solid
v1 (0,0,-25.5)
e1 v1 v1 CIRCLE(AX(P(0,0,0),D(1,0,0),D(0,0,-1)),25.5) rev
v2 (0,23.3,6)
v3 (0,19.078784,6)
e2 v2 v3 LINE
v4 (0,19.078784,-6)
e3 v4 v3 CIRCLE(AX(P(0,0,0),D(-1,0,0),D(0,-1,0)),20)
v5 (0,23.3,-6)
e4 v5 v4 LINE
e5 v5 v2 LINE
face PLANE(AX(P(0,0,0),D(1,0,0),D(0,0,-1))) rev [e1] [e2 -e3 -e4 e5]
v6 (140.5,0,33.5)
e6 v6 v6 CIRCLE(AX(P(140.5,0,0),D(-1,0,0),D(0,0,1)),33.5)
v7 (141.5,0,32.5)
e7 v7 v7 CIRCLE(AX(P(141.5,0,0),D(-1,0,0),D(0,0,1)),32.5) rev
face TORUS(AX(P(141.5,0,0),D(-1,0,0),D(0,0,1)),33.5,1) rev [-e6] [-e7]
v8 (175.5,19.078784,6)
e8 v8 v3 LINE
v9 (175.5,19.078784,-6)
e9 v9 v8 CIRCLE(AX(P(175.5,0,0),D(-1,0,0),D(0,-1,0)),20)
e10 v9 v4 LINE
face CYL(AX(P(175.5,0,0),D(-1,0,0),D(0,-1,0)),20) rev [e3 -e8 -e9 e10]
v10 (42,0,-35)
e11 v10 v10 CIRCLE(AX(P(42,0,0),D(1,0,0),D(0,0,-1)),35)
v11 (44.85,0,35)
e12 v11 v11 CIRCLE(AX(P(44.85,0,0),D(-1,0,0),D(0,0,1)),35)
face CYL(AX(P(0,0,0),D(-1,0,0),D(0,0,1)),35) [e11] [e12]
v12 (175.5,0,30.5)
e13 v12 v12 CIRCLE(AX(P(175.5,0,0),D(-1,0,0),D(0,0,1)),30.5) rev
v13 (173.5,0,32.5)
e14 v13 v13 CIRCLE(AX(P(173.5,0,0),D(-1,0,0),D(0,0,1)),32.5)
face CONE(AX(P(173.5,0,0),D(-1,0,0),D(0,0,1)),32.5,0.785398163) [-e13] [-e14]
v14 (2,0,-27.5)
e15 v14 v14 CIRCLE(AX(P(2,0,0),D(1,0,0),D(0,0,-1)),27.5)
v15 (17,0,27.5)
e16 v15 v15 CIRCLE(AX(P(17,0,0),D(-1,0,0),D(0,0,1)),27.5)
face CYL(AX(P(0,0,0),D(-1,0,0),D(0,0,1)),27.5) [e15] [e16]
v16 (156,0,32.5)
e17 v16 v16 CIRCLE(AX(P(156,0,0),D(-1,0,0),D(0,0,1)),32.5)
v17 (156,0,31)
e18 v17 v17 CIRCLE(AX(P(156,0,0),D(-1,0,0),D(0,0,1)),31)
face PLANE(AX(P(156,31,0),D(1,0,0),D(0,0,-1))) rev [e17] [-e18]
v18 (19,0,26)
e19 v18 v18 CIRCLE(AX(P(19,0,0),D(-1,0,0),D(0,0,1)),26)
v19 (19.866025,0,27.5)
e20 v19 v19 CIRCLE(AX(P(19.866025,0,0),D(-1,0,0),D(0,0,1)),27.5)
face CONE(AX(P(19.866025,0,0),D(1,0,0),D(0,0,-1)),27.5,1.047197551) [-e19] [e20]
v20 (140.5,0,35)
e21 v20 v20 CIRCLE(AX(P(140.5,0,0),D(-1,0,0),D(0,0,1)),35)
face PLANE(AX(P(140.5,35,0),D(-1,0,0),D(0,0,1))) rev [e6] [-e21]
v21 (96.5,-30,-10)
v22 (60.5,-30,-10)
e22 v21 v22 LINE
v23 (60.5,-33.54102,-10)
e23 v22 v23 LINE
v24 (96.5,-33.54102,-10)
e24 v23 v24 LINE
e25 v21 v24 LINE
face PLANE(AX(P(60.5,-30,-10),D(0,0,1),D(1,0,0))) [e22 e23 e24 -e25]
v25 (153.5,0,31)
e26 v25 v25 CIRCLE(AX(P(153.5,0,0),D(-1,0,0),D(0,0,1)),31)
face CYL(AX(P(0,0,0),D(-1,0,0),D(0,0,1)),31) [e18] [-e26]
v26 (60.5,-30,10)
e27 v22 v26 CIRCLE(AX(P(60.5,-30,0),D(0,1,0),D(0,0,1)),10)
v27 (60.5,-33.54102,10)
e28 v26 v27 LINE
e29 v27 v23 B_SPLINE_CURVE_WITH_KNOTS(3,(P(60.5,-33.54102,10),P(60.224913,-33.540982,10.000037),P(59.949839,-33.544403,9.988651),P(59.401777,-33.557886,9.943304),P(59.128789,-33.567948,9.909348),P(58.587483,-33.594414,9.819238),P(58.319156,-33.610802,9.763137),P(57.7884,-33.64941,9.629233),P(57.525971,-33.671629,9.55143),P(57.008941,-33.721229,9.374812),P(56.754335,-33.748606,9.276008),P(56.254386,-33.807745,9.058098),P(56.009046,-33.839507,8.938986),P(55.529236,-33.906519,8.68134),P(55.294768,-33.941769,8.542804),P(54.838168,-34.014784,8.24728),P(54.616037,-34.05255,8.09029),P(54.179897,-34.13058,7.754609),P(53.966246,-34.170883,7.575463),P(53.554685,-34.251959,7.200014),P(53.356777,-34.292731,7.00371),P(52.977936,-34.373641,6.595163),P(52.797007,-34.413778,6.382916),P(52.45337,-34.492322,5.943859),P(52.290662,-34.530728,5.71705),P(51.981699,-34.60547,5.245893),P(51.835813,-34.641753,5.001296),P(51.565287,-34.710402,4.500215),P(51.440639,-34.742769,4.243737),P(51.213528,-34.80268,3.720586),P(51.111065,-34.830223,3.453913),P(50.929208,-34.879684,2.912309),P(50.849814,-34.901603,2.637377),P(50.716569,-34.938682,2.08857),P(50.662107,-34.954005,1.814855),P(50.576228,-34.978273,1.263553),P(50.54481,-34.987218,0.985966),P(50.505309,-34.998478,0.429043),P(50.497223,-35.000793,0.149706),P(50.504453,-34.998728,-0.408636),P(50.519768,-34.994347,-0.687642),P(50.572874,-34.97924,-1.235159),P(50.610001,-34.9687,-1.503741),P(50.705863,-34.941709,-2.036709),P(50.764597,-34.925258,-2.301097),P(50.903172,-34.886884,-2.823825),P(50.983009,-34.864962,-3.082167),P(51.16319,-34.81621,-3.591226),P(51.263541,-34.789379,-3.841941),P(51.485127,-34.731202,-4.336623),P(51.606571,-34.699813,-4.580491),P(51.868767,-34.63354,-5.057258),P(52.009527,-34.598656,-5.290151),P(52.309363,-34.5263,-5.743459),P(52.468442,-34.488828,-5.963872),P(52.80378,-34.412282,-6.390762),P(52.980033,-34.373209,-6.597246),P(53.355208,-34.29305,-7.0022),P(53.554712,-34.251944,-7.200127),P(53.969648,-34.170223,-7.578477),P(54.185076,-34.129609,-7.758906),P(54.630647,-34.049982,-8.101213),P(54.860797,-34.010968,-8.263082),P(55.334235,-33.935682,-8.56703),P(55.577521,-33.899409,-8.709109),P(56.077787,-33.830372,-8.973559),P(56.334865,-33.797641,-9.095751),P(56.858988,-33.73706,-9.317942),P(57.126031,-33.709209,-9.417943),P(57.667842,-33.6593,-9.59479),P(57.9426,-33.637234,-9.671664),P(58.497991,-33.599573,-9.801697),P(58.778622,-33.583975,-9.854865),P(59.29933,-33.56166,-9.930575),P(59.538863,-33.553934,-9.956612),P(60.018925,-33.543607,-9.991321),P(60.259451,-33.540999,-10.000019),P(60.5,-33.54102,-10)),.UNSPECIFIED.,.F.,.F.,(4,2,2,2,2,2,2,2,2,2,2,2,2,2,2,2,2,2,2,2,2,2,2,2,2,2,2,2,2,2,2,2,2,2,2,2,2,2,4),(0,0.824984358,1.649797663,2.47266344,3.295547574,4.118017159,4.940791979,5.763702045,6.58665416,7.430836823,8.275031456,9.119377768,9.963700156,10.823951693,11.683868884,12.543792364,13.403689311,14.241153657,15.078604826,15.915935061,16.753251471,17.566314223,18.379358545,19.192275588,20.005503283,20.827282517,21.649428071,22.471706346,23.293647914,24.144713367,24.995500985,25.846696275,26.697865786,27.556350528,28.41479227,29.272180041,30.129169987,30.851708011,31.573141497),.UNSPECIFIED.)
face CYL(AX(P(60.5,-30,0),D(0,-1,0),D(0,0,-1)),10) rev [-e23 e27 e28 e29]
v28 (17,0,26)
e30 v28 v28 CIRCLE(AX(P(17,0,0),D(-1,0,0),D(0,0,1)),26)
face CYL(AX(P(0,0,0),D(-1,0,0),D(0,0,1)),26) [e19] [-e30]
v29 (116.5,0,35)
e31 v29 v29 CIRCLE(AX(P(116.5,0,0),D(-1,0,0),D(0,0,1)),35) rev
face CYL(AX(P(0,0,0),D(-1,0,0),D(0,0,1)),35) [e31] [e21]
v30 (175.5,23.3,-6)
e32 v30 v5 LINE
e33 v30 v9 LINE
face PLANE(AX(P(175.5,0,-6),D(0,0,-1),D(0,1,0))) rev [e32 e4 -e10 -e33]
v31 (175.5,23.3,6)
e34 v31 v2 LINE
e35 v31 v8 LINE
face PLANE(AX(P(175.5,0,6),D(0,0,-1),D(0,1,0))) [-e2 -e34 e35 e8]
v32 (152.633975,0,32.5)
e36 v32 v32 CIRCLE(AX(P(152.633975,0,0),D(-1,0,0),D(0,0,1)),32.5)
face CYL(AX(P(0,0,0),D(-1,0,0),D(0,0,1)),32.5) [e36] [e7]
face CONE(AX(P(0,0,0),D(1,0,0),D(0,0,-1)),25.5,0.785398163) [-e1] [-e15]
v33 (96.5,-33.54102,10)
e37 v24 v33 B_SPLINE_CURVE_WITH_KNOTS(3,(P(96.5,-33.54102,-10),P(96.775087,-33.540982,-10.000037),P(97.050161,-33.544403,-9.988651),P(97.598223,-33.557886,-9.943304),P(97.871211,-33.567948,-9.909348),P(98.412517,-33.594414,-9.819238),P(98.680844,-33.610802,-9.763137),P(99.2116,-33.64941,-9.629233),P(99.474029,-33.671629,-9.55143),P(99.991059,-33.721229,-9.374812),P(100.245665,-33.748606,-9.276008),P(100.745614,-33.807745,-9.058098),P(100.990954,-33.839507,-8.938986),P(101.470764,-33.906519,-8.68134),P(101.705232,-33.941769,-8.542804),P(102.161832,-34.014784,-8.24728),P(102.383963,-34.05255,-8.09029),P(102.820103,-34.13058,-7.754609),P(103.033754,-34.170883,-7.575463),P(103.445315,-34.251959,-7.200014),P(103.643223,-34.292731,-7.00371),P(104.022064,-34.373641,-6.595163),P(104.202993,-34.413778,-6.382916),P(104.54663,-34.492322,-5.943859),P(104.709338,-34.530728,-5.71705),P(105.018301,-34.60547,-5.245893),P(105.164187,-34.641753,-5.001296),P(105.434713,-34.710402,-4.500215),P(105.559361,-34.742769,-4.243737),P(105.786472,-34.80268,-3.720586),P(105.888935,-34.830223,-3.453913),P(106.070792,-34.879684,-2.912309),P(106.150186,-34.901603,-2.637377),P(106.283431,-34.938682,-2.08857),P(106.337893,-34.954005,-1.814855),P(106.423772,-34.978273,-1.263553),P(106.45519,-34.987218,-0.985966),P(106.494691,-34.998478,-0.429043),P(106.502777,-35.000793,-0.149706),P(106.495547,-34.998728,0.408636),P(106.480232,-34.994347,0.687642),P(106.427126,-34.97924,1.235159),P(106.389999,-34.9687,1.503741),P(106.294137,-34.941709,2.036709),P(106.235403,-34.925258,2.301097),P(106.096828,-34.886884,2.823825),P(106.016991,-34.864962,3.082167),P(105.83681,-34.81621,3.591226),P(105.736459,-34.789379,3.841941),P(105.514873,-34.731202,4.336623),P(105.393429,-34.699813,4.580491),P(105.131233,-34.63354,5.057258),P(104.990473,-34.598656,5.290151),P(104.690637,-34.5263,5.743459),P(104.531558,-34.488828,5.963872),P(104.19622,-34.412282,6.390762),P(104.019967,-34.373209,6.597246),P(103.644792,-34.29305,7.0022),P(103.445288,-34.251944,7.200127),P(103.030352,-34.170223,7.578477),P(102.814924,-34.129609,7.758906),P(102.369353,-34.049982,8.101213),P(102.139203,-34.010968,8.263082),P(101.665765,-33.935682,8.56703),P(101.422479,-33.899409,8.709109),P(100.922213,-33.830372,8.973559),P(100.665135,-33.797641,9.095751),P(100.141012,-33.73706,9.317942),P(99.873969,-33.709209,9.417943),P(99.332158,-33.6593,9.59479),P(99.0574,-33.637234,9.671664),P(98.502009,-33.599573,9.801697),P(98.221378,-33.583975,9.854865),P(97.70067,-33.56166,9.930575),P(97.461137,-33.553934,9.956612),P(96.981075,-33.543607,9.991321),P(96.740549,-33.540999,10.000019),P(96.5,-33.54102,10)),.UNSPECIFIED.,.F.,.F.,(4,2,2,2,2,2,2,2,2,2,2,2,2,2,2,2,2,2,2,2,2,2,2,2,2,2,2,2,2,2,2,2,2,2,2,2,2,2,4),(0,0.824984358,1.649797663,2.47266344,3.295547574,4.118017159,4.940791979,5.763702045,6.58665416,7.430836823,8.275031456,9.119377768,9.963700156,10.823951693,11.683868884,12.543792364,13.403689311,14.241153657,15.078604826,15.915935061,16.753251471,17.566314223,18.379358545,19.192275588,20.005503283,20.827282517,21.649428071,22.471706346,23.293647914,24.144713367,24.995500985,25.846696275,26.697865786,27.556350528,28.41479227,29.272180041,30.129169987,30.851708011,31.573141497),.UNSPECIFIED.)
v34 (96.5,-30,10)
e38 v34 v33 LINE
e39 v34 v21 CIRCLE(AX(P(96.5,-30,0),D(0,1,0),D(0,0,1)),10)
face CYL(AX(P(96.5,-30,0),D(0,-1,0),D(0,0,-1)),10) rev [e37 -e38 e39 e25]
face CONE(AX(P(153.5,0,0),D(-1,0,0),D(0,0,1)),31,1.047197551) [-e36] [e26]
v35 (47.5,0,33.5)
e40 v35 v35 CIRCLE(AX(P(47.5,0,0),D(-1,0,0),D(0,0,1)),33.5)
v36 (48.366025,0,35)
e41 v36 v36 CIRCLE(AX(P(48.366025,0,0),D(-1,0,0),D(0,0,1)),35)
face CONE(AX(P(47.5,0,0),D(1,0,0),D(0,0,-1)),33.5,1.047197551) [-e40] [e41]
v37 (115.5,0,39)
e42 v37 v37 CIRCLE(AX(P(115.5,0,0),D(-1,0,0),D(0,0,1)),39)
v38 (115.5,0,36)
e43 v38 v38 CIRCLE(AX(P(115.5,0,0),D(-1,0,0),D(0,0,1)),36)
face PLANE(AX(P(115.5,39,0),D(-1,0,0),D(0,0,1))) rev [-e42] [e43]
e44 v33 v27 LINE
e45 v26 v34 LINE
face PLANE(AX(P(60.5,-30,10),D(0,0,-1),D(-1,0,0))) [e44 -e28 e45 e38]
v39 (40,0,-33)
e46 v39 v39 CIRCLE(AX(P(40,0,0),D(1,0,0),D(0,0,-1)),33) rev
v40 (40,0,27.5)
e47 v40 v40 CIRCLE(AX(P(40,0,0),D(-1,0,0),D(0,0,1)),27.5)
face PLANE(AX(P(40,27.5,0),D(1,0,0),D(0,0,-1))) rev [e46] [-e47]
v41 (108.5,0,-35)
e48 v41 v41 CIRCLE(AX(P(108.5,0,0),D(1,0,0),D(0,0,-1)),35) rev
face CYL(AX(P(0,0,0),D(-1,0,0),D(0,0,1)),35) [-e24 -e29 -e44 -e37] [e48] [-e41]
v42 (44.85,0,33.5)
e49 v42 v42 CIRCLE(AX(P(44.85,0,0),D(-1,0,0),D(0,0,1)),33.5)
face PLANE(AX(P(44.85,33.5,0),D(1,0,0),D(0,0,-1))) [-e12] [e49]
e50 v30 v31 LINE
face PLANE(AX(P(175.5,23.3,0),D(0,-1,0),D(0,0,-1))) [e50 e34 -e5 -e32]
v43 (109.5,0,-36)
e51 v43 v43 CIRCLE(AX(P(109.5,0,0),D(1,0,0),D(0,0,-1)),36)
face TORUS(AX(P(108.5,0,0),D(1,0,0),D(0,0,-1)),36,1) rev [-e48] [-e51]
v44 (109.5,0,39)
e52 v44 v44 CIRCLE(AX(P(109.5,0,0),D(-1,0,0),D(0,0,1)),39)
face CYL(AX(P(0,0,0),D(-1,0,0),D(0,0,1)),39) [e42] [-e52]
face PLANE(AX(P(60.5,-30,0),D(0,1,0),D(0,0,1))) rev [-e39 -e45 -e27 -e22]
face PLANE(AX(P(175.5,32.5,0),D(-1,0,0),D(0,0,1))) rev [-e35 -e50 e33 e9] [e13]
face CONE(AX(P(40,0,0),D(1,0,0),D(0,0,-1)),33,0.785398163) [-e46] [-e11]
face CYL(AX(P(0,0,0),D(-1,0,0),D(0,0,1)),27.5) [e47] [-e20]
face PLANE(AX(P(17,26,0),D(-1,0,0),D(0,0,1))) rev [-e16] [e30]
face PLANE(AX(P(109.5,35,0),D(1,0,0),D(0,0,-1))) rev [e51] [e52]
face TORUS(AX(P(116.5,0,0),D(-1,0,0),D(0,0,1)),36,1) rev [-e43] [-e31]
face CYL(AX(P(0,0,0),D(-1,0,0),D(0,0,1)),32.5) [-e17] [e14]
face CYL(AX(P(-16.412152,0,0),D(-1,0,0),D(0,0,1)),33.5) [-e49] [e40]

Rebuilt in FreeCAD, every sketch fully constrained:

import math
import FreeCAD as App
import Part
import Sketcher
Q = App.Units.Quantity


def edges_at(feature, points):
    """Names of the edges that pass closest to the given points."""
    edges = feature.Shape.Edges
    near = lambda p: min(range(len(edges)), key=lambda i: edges[i].distToShape(Part.Vertex(*p))[0])
    return sorted({f"Edge{near(p) + 1}" for p in points})

doc = App.newDocument("Part")
body = doc.addObject("PartDesign::Body", "Body")

sketch1 = body.newObject("Sketcher::SketchObject", "Sketch")
sketch1.AttachmentSupport = (doc.getObject("XY_Plane"), [""])
sketch1.MapMode = "FlatFace"
sketch1.addGeometry([
    Part.LineSegment(App.Vector(0, 27.5, 0), App.Vector(0, 0, 0)),
    Part.LineSegment(App.Vector(0, 0, 0), App.Vector(175.5, 0, 0)),
    Part.LineSegment(App.Vector(175.5, 0, 0), App.Vector(175.5, 32.5, 0)),
    Part.LineSegment(App.Vector(175.5, 32.5, 0), App.Vector(156, 32.5, 0)),
    Part.LineSegment(App.Vector(156, 32.5, 0), App.Vector(156, 31, 0)),
    Part.LineSegment(App.Vector(156, 31, 0), App.Vector(153.5, 31, 0)),
    Part.LineSegment(App.Vector(153.5, 31, 0), App.Vector(152.633975, 32.5, 0)),
    Part.LineSegment(App.Vector(152.633975, 32.5, 0), App.Vector(140.5, 32.5, 0)),
    Part.LineSegment(App.Vector(140.5, 32.5, 0), App.Vector(140.5, 35, 0)),
    Part.LineSegment(App.Vector(140.5, 35, 0), App.Vector(115.5, 35, 0)),
    Part.LineSegment(App.Vector(115.5, 35, 0), App.Vector(115.5, 39, 0)),
    Part.LineSegment(App.Vector(115.5, 39, 0), App.Vector(109.5, 39, 0)),
    Part.LineSegment(App.Vector(109.5, 39, 0), App.Vector(109.5, 35, 0)),
    Part.LineSegment(App.Vector(109.5, 35, 0), App.Vector(40, 35, 0)),
    Part.LineSegment(App.Vector(40, 35, 0), App.Vector(40, 27.5, 0)),
    Part.LineSegment(App.Vector(40, 27.5, 0), App.Vector(19.866025, 27.5, 0)),
    Part.LineSegment(App.Vector(19.866025, 27.5, 0), App.Vector(19, 26, 0)),
    Part.LineSegment(App.Vector(19, 26, 0), App.Vector(17, 26, 0)),
    Part.LineSegment(App.Vector(17, 26, 0), App.Vector(17, 27.5, 0)),
    Part.LineSegment(App.Vector(17, 27.5, 0), App.Vector(0, 27.5, 0)),
], False)
sketch1.addConstraint([
    Sketcher.Constraint("Coincident", 0, 2, 1, 1),
    Sketcher.Constraint("Coincident", 1, 2, 2, 1),
    Sketcher.Constraint("Coincident", 2, 2, 3, 1),
    Sketcher.Constraint("Coincident", 3, 2, 4, 1),
    Sketcher.Constraint("Coincident", 4, 2, 5, 1),
    Sketcher.Constraint("Coincident", 5, 2, 6, 1),
    Sketcher.Constraint("Coincident", 6, 2, 7, 1),
    Sketcher.Constraint("Coincident", 7, 2, 8, 1),
    Sketcher.Constraint("Coincident", 8, 2, 9, 1),
    Sketcher.Constraint("Coincident", 9, 2, 10, 1),
    Sketcher.Constraint("Coincident", 10, 2, 11, 1),
    Sketcher.Constraint("Coincident", 11, 2, 12, 1),
    Sketcher.Constraint("Coincident", 12, 2, 13, 1),
    Sketcher.Constraint("Coincident", 13, 2, 14, 1),
    Sketcher.Constraint("Coincident", 14, 2, 15, 1),
    Sketcher.Constraint("Coincident", 15, 2, 16, 1),
    Sketcher.Constraint("Coincident", 16, 2, 17, 1),
    Sketcher.Constraint("Coincident", 17, 2, 18, 1),
    Sketcher.Constraint("Coincident", 18, 2, 19, 1),
    Sketcher.Constraint("Coincident", 19, 2, 0, 1),
    Sketcher.Constraint("Vertical", 0),
    Sketcher.Constraint("Horizontal", 1),
    Sketcher.Constraint("Vertical", 2),
    Sketcher.Constraint("Horizontal", 3),
    Sketcher.Constraint("Vertical", 4),
    Sketcher.Constraint("Horizontal", 5),
    Sketcher.Constraint("Horizontal", 7),
    Sketcher.Constraint("Vertical", 8),
    Sketcher.Constraint("Horizontal", 9),
    Sketcher.Constraint("Vertical", 10),
    Sketcher.Constraint("Horizontal", 11),
    Sketcher.Constraint("Vertical", 12),
    Sketcher.Constraint("Horizontal", 13),
    Sketcher.Constraint("Vertical", 14),
    Sketcher.Constraint("Horizontal", 15),
    Sketcher.Constraint("Horizontal", 17),
    Sketcher.Constraint("Vertical", 18),
    Sketcher.Constraint("Horizontal", 19),
    Sketcher.Constraint("Coincident", 0, 2, -1, 1),
    Sketcher.Constraint("Horizontal", 3, 2, 6, 2),
    Sketcher.Constraint("Horizontal", 9, 2, 12, 2),
    Sketcher.Constraint("Horizontal", 15, 2, 18, 2),
    Sketcher.Constraint("Equal", 5, 8),
    Sketcher.Constraint("Equal", 4, 18),
    Sketcher.Constraint("Equal", 6, 16),
    Sketcher.Constraint("DistanceX", 9, 2, 9, 1, 25.0),
    Sketcher.Constraint("DistanceX", 11, 2, 11, 1, 6.0),
    Sketcher.Constraint("DistanceX", 17, 2, 17, 1, 2.0),
    Sketcher.Constraint("DistanceX", 19, 2, 19, 1, 17.0),
    Sketcher.Constraint("DistanceY", 10, 1, 10, 2, 4.0),
    Sketcher.Constraint("Angle", 6, Q("120 deg")),
    Sketcher.Constraint("DistanceX", 1, 1, 1, 2, 175.5),
    Sketcher.Constraint("DistanceX", 3, 2, 3, 1, 19.5),
    Sketcher.Constraint("DistanceX", 5, 2, 5, 1, 2.5),
    Sketcher.Constraint("DistanceX", 13, 2, 13, 1, 69.5),
    Sketcher.Constraint("DistanceY", 0, 2, 0, 1, 27.5),
    Sketcher.Constraint("DistanceY", 2, 1, 2, 2, 32.5),
    Sketcher.Constraint("DistanceY", 4, 2, 4, 1, 1.5),
    Sketcher.Constraint("DistanceX", -1, 1, 13, 2, 40.0),
])
revolution = body.newObject("PartDesign::Revolution", "Revolution")
revolution.Profile = sketch1
revolution.ReferenceAxis = (sketch1, ["H_Axis"])
revolution.Angle = 360

sketch2 = body.newObject("Sketcher::SketchObject", "Sketch001")
sketch2.AttachmentSupport = (doc.getObject("YZ_Plane"), [""])
sketch2.MapMode = "FlatFace"
sketch2.addGeometry([
    Part.LineSegment(App.Vector(19.078784, 6, 0), App.Vector(23.3, 6, 0)),
    Part.LineSegment(App.Vector(23.3, 6, 0), App.Vector(23.3, -6, 0)),
    Part.LineSegment(App.Vector(23.3, -6, 0), App.Vector(19.078784, -6, 0)),
    Part.ArcOfCircle(Part.Circle(App.Vector(0, 0, 0), App.Vector(0, 0, 1), 20), math.radians(17.457603), math.radians(342.542397)),
], False)
sketch2.addConstraint([
    Sketcher.Constraint("Coincident", 0, 2, 1, 1),
    Sketcher.Constraint("Coincident", 1, 2, 2, 1),
    Sketcher.Constraint("Coincident", 2, 2, 3, 2),
    Sketcher.Constraint("Coincident", 3, 1, 0, 1),
    Sketcher.Constraint("Horizontal", 0),
    Sketcher.Constraint("Vertical", 1),
    Sketcher.Constraint("Horizontal", 2),
    Sketcher.Constraint("Coincident", 3, 3, -1, 1),
    Sketcher.Constraint("Vertical", 2, 2, 3, 1),
    Sketcher.Constraint("Radius", 3, 20.0),
    Sketcher.Constraint("DistanceY", 1, 2, 1, 1, 12.0),
    Sketcher.Constraint("DistanceX", -1, 1, 0, 2, 23.3),
])
pocket1 = body.newObject("PartDesign::Pocket", "Pocket")
pocket1.Profile = sketch2
pocket1.Type = "ThroughAll"
pocket1.Reversed = True
doc.recompute()

chamfer = body.newObject("PartDesign::Chamfer", "Chamfer")
chamfer.Base = (pocket1, edges_at(pocket1, [(175.5, 0, -32.5), (40, 0, -35), (0, 0, -27.5)]))
chamfer.Size = 2
doc.recompute()

fillet = body.newObject("PartDesign::Fillet", "Fillet")
fillet.Base = (chamfer, edges_at(chamfer, [(140.5, 0, -32.5), (115.5, 0, -35), (109.5, 0, -35)]))
fillet.Radius = 1

sketch3 = body.newObject("Sketcher::SketchObject", "Sketch002")
sketch3.AttachmentSupport = (doc.getObject("XY_Plane"), [""])
sketch3.MapMode = "FlatFace"
sketch3.addGeometry([
    Part.LineSegment(App.Vector(47.5, 33.5, 0), App.Vector(48.366025, 35, 0)),
    Part.LineSegment(App.Vector(48.366025, 35, 0), App.Vector(44.85, 35, 0)),
    Part.LineSegment(App.Vector(44.85, 35, 0), App.Vector(44.85, 33.5, 0)),
    Part.LineSegment(App.Vector(44.85, 33.5, 0), App.Vector(47.5, 33.5, 0)),
], False)
sketch3.addConstraint([
    Sketcher.Constraint("Coincident", 0, 2, 1, 1),
    Sketcher.Constraint("Coincident", 1, 2, 2, 1),
    Sketcher.Constraint("Coincident", 2, 2, 3, 1),
    Sketcher.Constraint("Coincident", 3, 2, 0, 1),
    Sketcher.Constraint("Horizontal", 1),
    Sketcher.Constraint("Vertical", 2),
    Sketcher.Constraint("Horizontal", 3),
    Sketcher.Constraint("Angle", 0, Q("60 deg")),
    Sketcher.Constraint("DistanceY", 2, 2, 2, 1, 1.5),
    Sketcher.Constraint("DistanceY", -1, 1, 0, 2, 35.0),
    Sketcher.Constraint("DistanceX", 3, 1, 3, 2, 2.65),
    Sketcher.Constraint("DistanceX", -1, 1, 3, 2, 47.5),
])
groove = body.newObject("PartDesign::Groove", "Groove")
groove.Profile = sketch3
groove.ReferenceAxis = (sketch3, ["H_Axis"])
groove.Angle = 360

sketch4 = body.newObject("Sketcher::SketchObject", "Sketch003")
sketch4.AttachmentSupport = (doc.getObject("XZ_Plane"), [""])
sketch4.MapMode = "FlatFace"
sketch4.AttachmentOffset = App.Placement(App.Vector(0, 0, 35), App.Rotation())
sketch4.addGeometry([
    Part.LineSegment(App.Vector(96.5, -10, 0), App.Vector(60.5, -10, 0)),
    Part.ArcOfCircle(Part.Circle(App.Vector(60.5, 0, 0), App.Vector(0, 0, 1), 10), math.radians(90), math.radians(270)),
    Part.LineSegment(App.Vector(60.5, 10, 0), App.Vector(96.5, 10, 0)),
    Part.ArcOfCircle(Part.Circle(App.Vector(96.5, 0, 0), App.Vector(0, 0, 1), 10), math.radians(-90), math.radians(90)),
], False)
sketch4.addConstraint([
    Sketcher.Constraint("Tangent", 0, 2, 1, 2),
    Sketcher.Constraint("Tangent", 1, 1, 2, 1),
    Sketcher.Constraint("Tangent", 2, 2, 3, 2),
    Sketcher.Constraint("Tangent", 3, 1, 0, 1),
    Sketcher.Constraint("Horizontal", 0),
    Sketcher.Constraint("Horizontal", 2),
    Sketcher.Constraint("PointOnObject", 1, 3, -1),
    Sketcher.Constraint("Radius", 1, 10.0),
    Sketcher.Constraint("DistanceX", 0, 2, 0, 1, 36.0),
    Sketcher.Constraint("DistanceX", -1, 1, 1, 3, 60.5),
])
pocket2 = body.newObject("PartDesign::Pocket", "Pocket001")
pocket2.Profile = sketch4
pocket2.Length = 5

doc.recompute()
